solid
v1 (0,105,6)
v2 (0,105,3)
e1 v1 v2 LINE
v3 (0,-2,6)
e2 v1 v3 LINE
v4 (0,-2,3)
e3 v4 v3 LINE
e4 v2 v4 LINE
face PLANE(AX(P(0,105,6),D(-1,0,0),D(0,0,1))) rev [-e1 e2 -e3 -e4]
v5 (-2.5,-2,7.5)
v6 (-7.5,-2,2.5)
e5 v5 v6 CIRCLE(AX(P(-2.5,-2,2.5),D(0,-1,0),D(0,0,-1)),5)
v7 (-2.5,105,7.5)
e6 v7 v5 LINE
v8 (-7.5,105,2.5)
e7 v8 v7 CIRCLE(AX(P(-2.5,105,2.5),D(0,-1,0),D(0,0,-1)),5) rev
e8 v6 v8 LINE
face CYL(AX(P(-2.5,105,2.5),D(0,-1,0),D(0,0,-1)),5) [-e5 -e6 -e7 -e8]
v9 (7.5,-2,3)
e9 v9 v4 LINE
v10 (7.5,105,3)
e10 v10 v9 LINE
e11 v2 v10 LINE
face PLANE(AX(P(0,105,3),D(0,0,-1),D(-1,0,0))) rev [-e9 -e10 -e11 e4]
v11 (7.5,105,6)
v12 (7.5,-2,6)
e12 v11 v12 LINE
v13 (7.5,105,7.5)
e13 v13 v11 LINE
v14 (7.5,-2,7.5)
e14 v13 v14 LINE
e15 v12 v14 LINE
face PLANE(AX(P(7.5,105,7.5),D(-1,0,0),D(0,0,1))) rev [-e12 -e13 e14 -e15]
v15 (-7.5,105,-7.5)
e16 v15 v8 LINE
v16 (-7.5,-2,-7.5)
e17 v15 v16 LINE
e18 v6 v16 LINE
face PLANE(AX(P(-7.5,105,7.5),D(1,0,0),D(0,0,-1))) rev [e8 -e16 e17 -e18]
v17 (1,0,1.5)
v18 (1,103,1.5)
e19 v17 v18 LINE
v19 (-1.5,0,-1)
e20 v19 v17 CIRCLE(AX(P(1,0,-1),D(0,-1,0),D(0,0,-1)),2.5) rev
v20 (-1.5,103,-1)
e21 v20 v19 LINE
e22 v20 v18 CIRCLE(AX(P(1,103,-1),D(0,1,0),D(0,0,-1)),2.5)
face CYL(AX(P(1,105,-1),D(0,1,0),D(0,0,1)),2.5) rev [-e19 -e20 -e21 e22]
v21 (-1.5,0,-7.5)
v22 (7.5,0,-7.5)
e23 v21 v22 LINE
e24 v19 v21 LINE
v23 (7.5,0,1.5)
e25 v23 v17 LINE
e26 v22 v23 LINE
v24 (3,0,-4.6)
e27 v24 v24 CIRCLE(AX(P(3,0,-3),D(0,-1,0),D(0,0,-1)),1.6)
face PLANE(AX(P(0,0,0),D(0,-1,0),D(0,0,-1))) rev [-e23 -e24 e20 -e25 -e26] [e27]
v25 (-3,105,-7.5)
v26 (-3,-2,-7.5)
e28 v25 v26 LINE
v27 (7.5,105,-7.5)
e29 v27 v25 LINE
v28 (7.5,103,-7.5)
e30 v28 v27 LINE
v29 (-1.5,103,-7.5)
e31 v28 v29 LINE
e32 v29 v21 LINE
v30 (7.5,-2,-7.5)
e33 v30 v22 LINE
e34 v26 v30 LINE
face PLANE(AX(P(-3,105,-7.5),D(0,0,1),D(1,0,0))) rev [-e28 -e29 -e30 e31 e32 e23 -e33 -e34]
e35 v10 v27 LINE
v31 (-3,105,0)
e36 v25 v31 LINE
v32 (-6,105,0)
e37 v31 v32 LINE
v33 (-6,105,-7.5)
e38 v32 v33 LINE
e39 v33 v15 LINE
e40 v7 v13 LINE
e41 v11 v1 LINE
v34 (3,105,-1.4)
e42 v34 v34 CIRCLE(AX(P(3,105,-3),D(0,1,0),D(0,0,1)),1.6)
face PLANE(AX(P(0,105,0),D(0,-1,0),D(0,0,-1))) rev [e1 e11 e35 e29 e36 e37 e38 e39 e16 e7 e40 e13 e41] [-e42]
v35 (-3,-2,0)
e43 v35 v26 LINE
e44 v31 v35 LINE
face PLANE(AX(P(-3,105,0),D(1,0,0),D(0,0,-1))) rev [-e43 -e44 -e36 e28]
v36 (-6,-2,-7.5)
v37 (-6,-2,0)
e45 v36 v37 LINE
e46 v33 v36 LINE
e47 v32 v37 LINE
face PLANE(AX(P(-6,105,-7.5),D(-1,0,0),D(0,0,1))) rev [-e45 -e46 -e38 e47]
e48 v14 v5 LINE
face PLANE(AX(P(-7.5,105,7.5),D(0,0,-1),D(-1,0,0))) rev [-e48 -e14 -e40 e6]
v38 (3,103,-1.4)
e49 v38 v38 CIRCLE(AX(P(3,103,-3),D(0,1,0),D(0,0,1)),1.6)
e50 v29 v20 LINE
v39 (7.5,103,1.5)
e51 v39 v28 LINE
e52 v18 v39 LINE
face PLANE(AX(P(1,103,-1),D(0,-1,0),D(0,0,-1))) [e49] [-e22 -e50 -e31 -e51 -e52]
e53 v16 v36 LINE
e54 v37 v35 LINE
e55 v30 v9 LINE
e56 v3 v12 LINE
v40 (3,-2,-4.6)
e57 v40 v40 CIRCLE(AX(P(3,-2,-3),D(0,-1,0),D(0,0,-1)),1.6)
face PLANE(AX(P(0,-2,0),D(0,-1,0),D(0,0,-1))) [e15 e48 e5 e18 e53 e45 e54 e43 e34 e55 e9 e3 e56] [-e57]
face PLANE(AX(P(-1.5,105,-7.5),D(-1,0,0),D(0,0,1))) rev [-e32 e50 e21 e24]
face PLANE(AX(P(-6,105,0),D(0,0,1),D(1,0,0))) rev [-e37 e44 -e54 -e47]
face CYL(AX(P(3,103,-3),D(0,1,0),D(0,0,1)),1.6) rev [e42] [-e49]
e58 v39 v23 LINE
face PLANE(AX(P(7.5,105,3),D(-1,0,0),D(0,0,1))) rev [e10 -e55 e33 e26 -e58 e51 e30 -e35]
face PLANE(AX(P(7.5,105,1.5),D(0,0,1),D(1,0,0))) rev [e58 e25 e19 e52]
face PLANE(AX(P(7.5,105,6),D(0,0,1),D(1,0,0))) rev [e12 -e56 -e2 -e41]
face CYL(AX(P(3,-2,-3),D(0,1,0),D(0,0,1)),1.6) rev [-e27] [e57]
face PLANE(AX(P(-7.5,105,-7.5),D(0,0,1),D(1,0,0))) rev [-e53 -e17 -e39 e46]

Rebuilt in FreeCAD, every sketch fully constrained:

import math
import FreeCAD as App
import Part
import Sketcher
from FreeCAD import Vector
Q = App.Units.Quantity


def edges_at(feature, points):
    """Names of the edges that pass closest to the given points."""
    edges = feature.Shape.Edges
    near = lambda p: min(range(len(edges)), key=lambda i: edges[i].distToShape(Part.Vertex(*p))[0])
    return sorted({f"Edge{near(p) + 1}" for p in points})


def add_polygon(sketch, points):
    """Adds a closed chain of lines whose ends are joined by coincident constraints."""
    first, n = sketch.GeometryCount, len(points)
    for a, b in zip(points, points[1:] + points[:1]):
        sketch.addGeometry(Part.LineSegment(App.Vector(*a, 0), App.Vector(*b, 0)), False)
    for i in range(n):
        sketch.addConstraint(Sketcher.Constraint("Coincident", first + i, 2, first + (i + 1) % n, 1))

doc = App.newDocument("Part")
body = doc.addObject("PartDesign::Body", "Body")

# Sketch on XZ plane
sketch1 = body.newObject("Sketcher::SketchObject", "Sketch")
sketch1.AttachmentSupport = (doc.getObject("XZ_Plane"), [""])
sketch1.MapMode = "FlatFace"
add_polygon(sketch1, [(-7.5, 7.5), (7.5, 7.5), (7.5, 6), (0, 6), (0, 3), (7.5, 3), (7.5, 1.5), (-1.5, 1.5), (-1.5, -7.5), (-3, -7.5), (-3, 0), (-6, 0), (-6, -7.5), (-7.5, -7.5)])  # lines 0-13
sketch1.addConstraint([
    Sketcher.Constraint("Horizontal", 0),
    Sketcher.Constraint("Vertical", 1),
    Sketcher.Constraint("Horizontal", 2),
    Sketcher.Constraint("Vertical", 3),
    Sketcher.Constraint("Horizontal", 4),
    Sketcher.Constraint("Vertical", 5),
    Sketcher.Constraint("Horizontal", 6),
    Sketcher.Constraint("Vertical", 7),
    Sketcher.Constraint("Horizontal", 8),
    Sketcher.Constraint("Vertical", 9),
    Sketcher.Constraint("Horizontal", 10),
    Sketcher.Constraint("Vertical", 11),
    Sketcher.Constraint("Horizontal", 12),
    Sketcher.Constraint("Vertical", 13),
    Sketcher.Constraint("Symmetric", 0, 2, 12, 2, -1, 1),
    Sketcher.Constraint("PointOnObject", 2, 2, -2),
    Sketcher.Constraint("PointOnObject", 9, 2, -1),
    Sketcher.Constraint("Horizontal", 8, 2, 11, 2),
    Sketcher.Constraint("Vertical", 1, 2, 4, 2),
    Sketcher.Constraint("Equal", 8, 12),
    Sketcher.Constraint("Equal", 12, 1),
    Sketcher.Constraint("Equal", 10, 3),
    Sketcher.Constraint("Equal", 1, 5),
    Sketcher.Constraint("Equal", 6, 7),
    Sketcher.Constraint("DistanceX", 0, 1, 0, 2, Q("15 mm")),
    Sketcher.Constraint("DistanceX", 6, 2, 6, 1, Q("9 mm")),
    Sketcher.Constraint("DistanceX", 10, 2, 10, 1, Q("3 mm")),
])
pad1 = body.newObject("PartDesign::Pad", "Pad")
pad1.Profile = sketch1
pad1.Length = 105
pad1.Reversed = True

# Sketch on XZ plane
sketch2 = body.newObject("Sketcher::SketchObject", "Sketch001")
sketch2.AttachmentSupport = (doc.getObject("XZ_Plane"), [""])
sketch2.MapMode = "FlatFace"
add_polygon(sketch2, [(7.5, 7.5), (-7.5, 7.5), (-7.5, -7.5), (-6, -7.5), (-6, 0), (-3, 0), (-3, -7.5), (7.5, -7.5), (7.5, 3), (0, 3), (0, 6), (7.5, 6)])  # lines 0-11
sketch2.addGeometry(Part.Circle(Vector(3, -3, 0), Vector(0, 0, 1), 1.6), False)  # 12
sketch2.addConstraint([
    Sketcher.Constraint("Horizontal", 0),
    Sketcher.Constraint("Vertical", 1),
    Sketcher.Constraint("Horizontal", 2),
    Sketcher.Constraint("Vertical", 3),
    Sketcher.Constraint("Horizontal", 4),
    Sketcher.Constraint("Vertical", 5),
    Sketcher.Constraint("Horizontal", 6),
    Sketcher.Constraint("Vertical", 7),
    Sketcher.Constraint("Horizontal", 8),
    Sketcher.Constraint("Vertical", 9),
    Sketcher.Constraint("Horizontal", 10),
    Sketcher.Constraint("Vertical", 11),
    Sketcher.Constraint("Symmetric", 0, 2, 6, 2, -1, 1),
    Sketcher.Constraint("Symmetric", 1, 2, 11, 2, -1, 1),
    Sketcher.Constraint("PointOnObject", 3, 2, -1),
    Sketcher.Constraint("PointOnObject", 8, 2, -2),
    Sketcher.Constraint("Equal", 0, 1),
    Sketcher.Constraint("Equal", 6, 7),
    Sketcher.Constraint("Equal", 4, 9),
    Sketcher.Constraint("Diameter", 12, Q("3.2 mm")),
    Sketcher.Constraint("DistanceX", 0, 2, 0, 1, Q("15 mm")),
    Sketcher.Constraint("DistanceX", 4, 1, 4, 2, Q("3 mm")),
    Sketcher.Constraint("DistanceX", 2, 1, 2, 2, Q("1.5 mm")),
    Sketcher.Constraint("DistanceX", -1, 1, 12, 3, Q("3 mm")),
    Sketcher.Constraint("DistanceY", 12, 3, -1, 1, Q("3 mm")),
])
pad2 = body.newObject("PartDesign::Pad", "Pad001")
pad2.Profile = sketch2
pad2.Length = 2
doc.recompute()

fillet = body.newObject("PartDesign::Fillet", "Fillet")
fillet.Base = (pad2, edges_at(pad2, [(-7.5, 51.5, 7.5)]))
fillet.Radius = 5
doc.recompute()

fillet2 = body.newObject("PartDesign::Fillet", "Fillet001")
fillet2.Base = (fillet, edges_at(fillet, [(-1.5, 52.5, 1.5)]))
fillet2.Radius = 2.5

# Sketch on XZ plane
sketch3 = body.newObject("Sketcher::SketchObject", "Sketch002")
sketch3.AttachmentSupport = (doc.getObject("XZ_Plane"), [""])
sketch3.MapMode = "FlatFace"
sketch3.AttachmentOffset = App.Placement(Vector(0, 0, -105), App.Rotation())
sketch3.addGeometry([
    Part.LineSegment(Vector(7.5, -7.5, 0), Vector(-1.5, -7.5, 0)),  # 0
    Part.LineSegment(Vector(-1.5, -7.5, 0), Vector(-1.5, -1, 0)),  # 1
    Part.ArcOfCircle(Part.Circle(Vector(1, -1, 0), Vector(0, 0, 1), 2.5), math.radians(90), math.radians(180)),  # 2
    Part.LineSegment(Vector(1, 1.5, 0), Vector(7.5, 1.5, 0)),  # 3
    Part.LineSegment(Vector(7.5, 1.5, 0), Vector(7.5, -7.5, 0)),  # 4
    Part.Circle(Vector(3, -3, 0), Vector(0, 0, 1), 1.6),  # 5
], False)
sketch3.addConstraint([
    Sketcher.Constraint("Coincident", 0, 2, 1, 1),
    Sketcher.Constraint("Tangent", 1, 2, 2, 2),
    Sketcher.Constraint("Tangent", 2, 1, 3, 1),
    Sketcher.Constraint("Coincident", 3, 2, 4, 1),
    Sketcher.Constraint("Coincident", 4, 2, 0, 1),
    Sketcher.Constraint("Horizontal", 0),
    Sketcher.Constraint("Vertical", 1),
    Sketcher.Constraint("Horizontal", 3),
    Sketcher.Constraint("Vertical", 4),
    Sketcher.Constraint("Equal", 3, 1),
    Sketcher.Constraint("Diameter", 5, Q("3.2 mm")),
    Sketcher.Constraint("Radius", 2, Q("2.5 mm")),
    Sketcher.Constraint("DistanceX", 0, 2, 0, 1, Q("9 mm")),
    Sketcher.Constraint("DistanceX", -1, 1, 2, 3, Q("1 mm")),
    Sketcher.Constraint("DistanceY", 2, 3, -1, 1, Q("1 mm")),
    Sketcher.Constraint("DistanceX", -1, 1, 5, 3, Q("3 mm")),
    Sketcher.Constraint("DistanceY", 5, 3, -1, 1, Q("3 mm")),
])
pad3 = body.newObject("PartDesign::Pad", "Pad002")
pad3.Profile = sketch3
pad3.Length = 2

doc.recompute()
